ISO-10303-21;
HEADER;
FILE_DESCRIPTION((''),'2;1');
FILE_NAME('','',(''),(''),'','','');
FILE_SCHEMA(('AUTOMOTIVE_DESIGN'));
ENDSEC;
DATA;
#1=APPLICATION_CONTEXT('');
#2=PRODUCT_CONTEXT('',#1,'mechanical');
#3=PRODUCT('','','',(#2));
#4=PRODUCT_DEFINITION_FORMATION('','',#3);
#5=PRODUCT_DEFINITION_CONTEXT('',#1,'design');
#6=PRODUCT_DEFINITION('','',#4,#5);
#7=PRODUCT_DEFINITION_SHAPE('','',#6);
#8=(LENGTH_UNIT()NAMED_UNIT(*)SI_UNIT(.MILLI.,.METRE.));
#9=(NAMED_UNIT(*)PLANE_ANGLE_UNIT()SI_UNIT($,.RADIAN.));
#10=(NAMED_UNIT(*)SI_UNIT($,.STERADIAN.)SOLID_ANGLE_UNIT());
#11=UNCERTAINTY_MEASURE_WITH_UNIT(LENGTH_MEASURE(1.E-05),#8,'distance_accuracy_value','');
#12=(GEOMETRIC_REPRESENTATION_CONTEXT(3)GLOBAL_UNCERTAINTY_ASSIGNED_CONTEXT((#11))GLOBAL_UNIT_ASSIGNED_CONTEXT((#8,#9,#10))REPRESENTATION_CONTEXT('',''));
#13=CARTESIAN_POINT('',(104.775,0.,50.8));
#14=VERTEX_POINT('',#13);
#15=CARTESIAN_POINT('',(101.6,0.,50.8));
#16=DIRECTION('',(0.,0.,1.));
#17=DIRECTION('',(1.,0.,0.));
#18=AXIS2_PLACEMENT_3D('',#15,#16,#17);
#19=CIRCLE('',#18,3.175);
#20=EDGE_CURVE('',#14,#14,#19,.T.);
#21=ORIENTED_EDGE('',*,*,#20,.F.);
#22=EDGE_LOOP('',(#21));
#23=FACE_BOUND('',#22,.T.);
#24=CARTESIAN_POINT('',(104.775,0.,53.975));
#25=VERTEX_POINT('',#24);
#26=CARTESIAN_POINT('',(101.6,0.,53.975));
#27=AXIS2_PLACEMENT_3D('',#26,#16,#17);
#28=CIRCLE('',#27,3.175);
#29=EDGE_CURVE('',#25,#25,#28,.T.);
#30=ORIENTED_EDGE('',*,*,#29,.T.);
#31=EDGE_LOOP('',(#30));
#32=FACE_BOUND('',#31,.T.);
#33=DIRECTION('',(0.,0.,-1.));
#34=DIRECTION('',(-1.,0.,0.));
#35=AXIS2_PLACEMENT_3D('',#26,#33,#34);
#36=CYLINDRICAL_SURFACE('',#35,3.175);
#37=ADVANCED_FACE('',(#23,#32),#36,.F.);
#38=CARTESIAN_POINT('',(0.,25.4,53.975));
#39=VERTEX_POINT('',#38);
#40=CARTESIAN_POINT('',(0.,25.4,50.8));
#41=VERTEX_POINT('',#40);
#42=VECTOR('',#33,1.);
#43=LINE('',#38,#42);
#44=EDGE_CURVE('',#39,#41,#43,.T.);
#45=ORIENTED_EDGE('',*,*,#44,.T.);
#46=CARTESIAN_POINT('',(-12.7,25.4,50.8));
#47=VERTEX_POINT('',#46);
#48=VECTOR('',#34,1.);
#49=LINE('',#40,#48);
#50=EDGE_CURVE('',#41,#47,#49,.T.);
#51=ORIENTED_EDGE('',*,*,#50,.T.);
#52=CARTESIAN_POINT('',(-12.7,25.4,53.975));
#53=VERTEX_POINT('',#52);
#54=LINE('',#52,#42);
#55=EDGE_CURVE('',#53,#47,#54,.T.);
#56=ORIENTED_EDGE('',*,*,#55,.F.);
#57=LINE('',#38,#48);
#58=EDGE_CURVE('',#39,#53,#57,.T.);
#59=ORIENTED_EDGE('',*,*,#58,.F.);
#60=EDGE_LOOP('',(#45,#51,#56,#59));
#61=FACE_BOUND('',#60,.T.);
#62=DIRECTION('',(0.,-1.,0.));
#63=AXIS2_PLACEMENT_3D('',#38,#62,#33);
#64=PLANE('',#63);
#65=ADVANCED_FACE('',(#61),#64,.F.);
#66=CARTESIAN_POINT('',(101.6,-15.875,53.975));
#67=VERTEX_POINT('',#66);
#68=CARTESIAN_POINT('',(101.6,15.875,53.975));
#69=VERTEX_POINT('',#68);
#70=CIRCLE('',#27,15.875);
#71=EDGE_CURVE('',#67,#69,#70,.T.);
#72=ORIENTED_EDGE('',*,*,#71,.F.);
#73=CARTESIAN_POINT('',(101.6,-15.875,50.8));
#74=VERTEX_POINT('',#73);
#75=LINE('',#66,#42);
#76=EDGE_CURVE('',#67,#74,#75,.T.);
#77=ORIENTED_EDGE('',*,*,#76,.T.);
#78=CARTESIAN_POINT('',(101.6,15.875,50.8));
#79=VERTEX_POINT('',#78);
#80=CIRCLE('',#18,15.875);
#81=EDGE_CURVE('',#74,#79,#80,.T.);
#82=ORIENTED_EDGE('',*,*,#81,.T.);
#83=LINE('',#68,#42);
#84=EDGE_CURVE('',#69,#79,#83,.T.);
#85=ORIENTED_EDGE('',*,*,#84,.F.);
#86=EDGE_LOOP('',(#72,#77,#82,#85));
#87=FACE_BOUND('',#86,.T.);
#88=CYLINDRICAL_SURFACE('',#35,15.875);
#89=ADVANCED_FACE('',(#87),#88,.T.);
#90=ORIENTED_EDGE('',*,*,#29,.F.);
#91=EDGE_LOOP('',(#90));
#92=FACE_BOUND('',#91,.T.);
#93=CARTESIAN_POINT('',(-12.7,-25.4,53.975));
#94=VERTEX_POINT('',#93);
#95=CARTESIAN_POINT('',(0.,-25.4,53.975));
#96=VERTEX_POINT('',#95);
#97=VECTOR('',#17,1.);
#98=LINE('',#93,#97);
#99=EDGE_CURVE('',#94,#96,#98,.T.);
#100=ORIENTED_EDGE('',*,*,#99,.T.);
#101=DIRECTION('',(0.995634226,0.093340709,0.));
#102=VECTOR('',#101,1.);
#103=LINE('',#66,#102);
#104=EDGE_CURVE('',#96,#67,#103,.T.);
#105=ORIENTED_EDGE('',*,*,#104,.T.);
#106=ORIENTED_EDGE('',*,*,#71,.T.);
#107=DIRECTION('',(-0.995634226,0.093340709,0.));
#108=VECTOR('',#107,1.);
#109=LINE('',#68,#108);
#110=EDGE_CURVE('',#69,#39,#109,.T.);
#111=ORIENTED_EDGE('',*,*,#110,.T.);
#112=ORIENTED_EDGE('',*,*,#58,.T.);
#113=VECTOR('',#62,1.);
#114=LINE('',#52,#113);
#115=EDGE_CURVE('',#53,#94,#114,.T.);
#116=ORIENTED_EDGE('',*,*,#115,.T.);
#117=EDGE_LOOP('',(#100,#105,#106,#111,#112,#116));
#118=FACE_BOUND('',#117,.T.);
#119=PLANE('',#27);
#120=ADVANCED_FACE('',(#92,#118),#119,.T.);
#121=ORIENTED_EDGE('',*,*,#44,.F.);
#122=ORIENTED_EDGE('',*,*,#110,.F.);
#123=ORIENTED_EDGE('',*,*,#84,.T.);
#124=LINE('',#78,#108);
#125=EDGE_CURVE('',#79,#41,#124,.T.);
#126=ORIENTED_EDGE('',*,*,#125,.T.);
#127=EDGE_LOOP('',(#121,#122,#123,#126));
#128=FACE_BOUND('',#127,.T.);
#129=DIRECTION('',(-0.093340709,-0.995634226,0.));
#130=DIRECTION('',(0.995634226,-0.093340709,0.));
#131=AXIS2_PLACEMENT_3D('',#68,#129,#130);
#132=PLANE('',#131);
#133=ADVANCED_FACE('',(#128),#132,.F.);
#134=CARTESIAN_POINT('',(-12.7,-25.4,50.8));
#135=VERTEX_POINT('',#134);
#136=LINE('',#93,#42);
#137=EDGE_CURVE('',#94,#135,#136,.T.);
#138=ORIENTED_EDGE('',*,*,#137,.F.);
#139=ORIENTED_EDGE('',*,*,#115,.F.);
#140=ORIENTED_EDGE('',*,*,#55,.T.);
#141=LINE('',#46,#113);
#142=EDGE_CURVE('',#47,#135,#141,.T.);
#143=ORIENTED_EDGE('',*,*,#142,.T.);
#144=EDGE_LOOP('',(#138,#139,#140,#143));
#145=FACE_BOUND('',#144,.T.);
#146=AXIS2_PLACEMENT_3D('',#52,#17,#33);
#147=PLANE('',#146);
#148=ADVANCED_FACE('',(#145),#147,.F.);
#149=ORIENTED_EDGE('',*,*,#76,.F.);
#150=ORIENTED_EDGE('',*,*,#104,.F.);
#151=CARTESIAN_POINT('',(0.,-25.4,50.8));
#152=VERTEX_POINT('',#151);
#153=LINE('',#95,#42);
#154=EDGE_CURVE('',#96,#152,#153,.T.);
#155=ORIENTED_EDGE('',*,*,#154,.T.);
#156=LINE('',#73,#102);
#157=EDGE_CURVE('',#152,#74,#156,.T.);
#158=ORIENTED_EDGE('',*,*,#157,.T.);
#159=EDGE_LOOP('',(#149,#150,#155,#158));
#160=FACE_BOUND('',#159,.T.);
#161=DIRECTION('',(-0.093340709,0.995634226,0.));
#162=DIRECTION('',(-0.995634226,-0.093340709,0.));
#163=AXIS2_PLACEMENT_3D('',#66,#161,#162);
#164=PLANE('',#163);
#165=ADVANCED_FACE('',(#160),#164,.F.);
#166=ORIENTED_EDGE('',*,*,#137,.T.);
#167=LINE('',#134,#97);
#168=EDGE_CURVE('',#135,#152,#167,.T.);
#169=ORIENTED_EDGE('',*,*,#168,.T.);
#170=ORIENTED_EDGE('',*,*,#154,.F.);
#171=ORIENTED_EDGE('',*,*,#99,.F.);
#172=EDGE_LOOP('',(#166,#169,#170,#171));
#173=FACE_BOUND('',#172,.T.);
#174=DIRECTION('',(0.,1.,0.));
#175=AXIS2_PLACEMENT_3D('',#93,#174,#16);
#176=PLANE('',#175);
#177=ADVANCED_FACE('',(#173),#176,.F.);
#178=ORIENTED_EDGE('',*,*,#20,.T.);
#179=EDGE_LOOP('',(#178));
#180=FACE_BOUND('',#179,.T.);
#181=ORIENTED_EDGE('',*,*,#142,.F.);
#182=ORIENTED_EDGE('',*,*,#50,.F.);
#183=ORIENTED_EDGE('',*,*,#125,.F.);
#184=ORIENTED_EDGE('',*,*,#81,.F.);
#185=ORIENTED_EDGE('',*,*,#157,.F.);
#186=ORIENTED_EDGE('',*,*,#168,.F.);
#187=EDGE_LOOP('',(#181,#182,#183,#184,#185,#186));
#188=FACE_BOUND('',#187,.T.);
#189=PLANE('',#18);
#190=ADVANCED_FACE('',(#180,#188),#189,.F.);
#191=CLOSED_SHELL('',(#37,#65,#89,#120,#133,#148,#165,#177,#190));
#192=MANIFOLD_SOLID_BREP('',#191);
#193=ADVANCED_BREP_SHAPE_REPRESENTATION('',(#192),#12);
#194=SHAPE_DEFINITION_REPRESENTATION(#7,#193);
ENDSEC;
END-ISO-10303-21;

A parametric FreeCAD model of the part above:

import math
import FreeCAD as App
import Part
import Sketcher
Q = App.Units.Quantity

doc = App.newDocument("Part")
body = doc.addObject("PartDesign::Body", "Body")

sketch1 = doc.addObject("Sketcher::SketchObject", "Sketch")
body.addObject(sketch1)
sketch1.AttachmentSupport = (doc.XY_Plane, [""])
sketch1.MapMode = "FlatFace"
sketch1.AttachmentOffset = App.Placement(App.Vector(0, 0, 2 * 25.4), App.Rotation())
sketch1.addGeometry([
    Part.LineSegment(App.Vector(101.6, 15.9, 0), App.Vector(0, 25.4, 0)),
    Part.LineSegment(App.Vector(0, 25.4, 0), App.Vector(-12.7, 25.4, 0)),
    Part.LineSegment(App.Vector(-12.7, 25.4, 0), App.Vector(-12.7, -25.4, 0)),
    Part.LineSegment(App.Vector(-12.7, -25.4, 0), App.Vector(0, -25.4, 0)),
    Part.LineSegment(App.Vector(0, -25.4, 0), App.Vector(101.6, -15.9, 0)),
    Part.ArcOfCircle(Part.Circle(App.Vector(101.6, 0, 0), App.Vector(0, 0, 1), 15.9), math.radians(-90), math.radians(90)),
    Part.Circle(App.Vector(101.6, 0, 0), App.Vector(0, 0, 1), 3.2),
], False)
sketch1.addConstraint([
    Sketcher.Constraint("Coincident", 0, 2, 1, 1),
    Sketcher.Constraint("Coincident", 1, 2, 2, 1),
    Sketcher.Constraint("Coincident", 2, 2, 3, 1),
    Sketcher.Constraint("Coincident", 3, 2, 4, 1),
    Sketcher.Constraint("Coincident", 4, 2, 5, 1),
    Sketcher.Constraint("Coincident", 5, 2, 0, 1),
    Sketcher.Constraint("Horizontal", 1),
    Sketcher.Constraint("Vertical", 2),
    Sketcher.Constraint("Horizontal", 3),
    Sketcher.Constraint("Coincident", 6, 3, 5, 3),
    Sketcher.Constraint("Symmetric", 0, 2, 3, 2, -1, 1),
    Sketcher.Constraint("Symmetric", 4, 2, 5, 2, -1),
    Sketcher.Constraint("PointOnObject", 0, 2, -2),
    Sketcher.Constraint("Vertical", 6, 3, 4, 2),
    Sketcher.Constraint("Diameter", 6, Q("0.25 in")),
    Sketcher.Constraint("DistanceY", 2, 2, 2, 1, Q("2 in")),
    Sketcher.Constraint("DistanceX", 1, 2, 1, 1, Q("0.5 in")),
    Sketcher.Constraint("DistanceX", -1, 1, 5, 3, Q("4 in")),
    Sketcher.Constraint("Radius", 5, Q("0.625 in")),
])
pad1 = doc.addObject("PartDesign::Pad", "Pad")
body.addObject(pad1)
pad1.Profile = sketch1
pad1.Length = Q("0.125 in")

doc.recompute()
